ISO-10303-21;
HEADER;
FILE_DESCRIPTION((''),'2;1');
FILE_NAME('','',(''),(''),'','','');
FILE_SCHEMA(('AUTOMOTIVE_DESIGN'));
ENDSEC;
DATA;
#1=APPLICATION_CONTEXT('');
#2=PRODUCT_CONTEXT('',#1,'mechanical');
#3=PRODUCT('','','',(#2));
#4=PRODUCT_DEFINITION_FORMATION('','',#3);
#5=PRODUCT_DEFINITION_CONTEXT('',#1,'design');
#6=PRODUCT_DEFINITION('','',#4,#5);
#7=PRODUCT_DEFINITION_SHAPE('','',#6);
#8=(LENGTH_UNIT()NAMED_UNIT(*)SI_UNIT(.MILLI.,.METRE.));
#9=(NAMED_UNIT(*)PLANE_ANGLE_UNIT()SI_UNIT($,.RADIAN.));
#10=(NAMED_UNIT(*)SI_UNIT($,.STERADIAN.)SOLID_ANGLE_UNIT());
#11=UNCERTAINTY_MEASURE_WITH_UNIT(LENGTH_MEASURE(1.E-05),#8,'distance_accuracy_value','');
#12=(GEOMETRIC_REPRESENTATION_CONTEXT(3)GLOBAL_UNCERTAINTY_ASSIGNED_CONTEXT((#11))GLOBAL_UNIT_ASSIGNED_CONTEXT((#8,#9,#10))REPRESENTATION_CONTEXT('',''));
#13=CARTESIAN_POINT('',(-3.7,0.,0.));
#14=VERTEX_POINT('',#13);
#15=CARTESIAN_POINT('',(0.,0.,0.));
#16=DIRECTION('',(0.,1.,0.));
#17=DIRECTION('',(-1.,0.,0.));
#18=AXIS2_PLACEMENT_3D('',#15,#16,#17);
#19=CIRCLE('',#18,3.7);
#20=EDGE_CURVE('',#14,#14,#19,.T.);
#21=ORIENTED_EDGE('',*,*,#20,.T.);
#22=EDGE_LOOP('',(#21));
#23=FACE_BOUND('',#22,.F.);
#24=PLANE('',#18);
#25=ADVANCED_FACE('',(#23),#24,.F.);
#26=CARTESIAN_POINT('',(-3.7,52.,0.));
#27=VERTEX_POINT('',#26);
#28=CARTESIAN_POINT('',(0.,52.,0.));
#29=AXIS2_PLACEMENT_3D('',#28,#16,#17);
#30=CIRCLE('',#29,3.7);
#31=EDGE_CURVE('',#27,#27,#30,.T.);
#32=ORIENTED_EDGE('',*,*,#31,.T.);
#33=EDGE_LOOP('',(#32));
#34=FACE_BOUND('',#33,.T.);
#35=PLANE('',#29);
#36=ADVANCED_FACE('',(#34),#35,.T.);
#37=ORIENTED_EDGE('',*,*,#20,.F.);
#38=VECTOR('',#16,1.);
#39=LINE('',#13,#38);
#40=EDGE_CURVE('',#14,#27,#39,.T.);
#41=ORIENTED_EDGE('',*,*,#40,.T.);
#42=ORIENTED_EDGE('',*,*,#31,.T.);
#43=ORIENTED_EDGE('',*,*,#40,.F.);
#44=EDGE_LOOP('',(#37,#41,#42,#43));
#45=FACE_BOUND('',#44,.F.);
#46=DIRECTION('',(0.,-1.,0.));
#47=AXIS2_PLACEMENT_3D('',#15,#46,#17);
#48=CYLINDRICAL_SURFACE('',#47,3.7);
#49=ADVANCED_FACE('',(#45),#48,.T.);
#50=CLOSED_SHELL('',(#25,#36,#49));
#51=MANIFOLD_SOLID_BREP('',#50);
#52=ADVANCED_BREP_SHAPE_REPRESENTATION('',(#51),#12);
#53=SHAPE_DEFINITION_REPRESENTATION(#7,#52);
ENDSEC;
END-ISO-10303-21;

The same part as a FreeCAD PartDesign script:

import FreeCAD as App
import Part
import Sketcher
from FreeCAD import Vector

doc = App.newDocument("Part")
body = doc.addObject("PartDesign::Body", "Body")

# Sketch on XZ plane
sketch1 = body.newObject("Sketcher::SketchObject", "Sketch")
sketch1.AttachmentSupport = (doc.getObject("XZ_Plane"), [""])
sketch1.MapMode = "FlatFace"
sketch1.addGeometry(Part.Circle(Vector(0, 0, 0), Vector(0, 0, 1), 3.7), False)
sketch1.addConstraint([
    Sketcher.Constraint("Coincident", 0, 3, -1, 1),
    Sketcher.Constraint("Diameter", 0, 7.4),
])
pad1 = body.newObject("PartDesign::Pad", "Pad")
pad1.Profile = sketch1
pad1.Length = 52
pad1.Reversed = True

doc.recompute()
